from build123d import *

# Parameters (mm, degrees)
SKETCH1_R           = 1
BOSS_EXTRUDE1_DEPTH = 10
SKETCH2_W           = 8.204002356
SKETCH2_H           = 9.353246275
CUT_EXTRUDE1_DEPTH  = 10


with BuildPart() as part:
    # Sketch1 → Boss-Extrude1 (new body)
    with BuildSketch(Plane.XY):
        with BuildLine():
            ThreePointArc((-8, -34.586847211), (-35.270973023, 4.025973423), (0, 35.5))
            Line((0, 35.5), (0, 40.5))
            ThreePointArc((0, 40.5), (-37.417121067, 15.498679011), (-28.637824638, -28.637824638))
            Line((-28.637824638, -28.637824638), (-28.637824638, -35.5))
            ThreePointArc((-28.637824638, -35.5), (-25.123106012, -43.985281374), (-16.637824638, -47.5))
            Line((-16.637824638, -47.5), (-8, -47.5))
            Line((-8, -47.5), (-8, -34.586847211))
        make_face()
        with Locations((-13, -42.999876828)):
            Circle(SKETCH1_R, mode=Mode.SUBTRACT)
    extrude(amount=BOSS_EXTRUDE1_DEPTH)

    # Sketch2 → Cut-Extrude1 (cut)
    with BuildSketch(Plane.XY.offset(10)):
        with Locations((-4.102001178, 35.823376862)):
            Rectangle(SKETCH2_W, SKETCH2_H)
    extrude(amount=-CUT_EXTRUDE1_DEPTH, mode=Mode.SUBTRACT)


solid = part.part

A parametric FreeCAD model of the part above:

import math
import FreeCAD as App
import Part
import Sketcher
from FreeCAD import Vector
Q = App.Units.Quantity


def add_polygon(sketch, points):
    """Adds a closed chain of lines whose ends are joined by coincident constraints."""
    first, n = sketch.GeometryCount, len(points)
    for a, b in zip(points, points[1:] + points[:1]):
        sketch.addGeometry(Part.LineSegment(App.Vector(*a, 0), App.Vector(*b, 0)), False)
    for i in range(n):
        sketch.addConstraint(Sketcher.Constraint("Coincident", first + i, 2, first + (i + 1) % n, 1))

doc = App.newDocument("Part")
params = doc.addObject("Spreadsheet::Sheet", "Params")
for row, (alias, value) in enumerate([
    ("sketch1_diameter", "2 mm"),
    ("sketch1_radius", "12 mm"),
    ("sketch1_radius2", "35.5 mm"),
    ("sketch1_radius3", "40.5 mm"),
    ("pad1_length", "10 mm"),
    ("pocket1_length", "10 mm"),
], start=1):
    params.set(f"A{row}", alias)
    params.set(f"B{row}", "=" + value)
    params.setAlias(f"B{row}", alias)

body = doc.addObject("PartDesign::Body", "Body")

sketch1 = body.newObject("Sketcher::SketchObject", "Sketch")
sketch1.AttachmentSupport = (doc.getObject("XY_Plane"), [""])
sketch1.MapMode = "FlatFace"
sketch1.addGeometry([
    Part.ArcOfCircle(Part.Circle(Vector(0, 0, 0), Vector(0, 0, 1), 35.5), math.radians(90), math.radians(257)),
    Part.LineSegment(Vector(0, 35.5, 0), Vector(0, 40.5, 0)),
    Part.ArcOfCircle(Part.Circle(Vector(0, 0, 0), Vector(0, 0, 1), 40.5), math.radians(90), math.radians(225)),
    Part.LineSegment(Vector(-28.6, -28.6, 0), Vector(-28.6, -35.5, 0)),
    Part.ArcOfCircle(Part.Circle(Vector(-16.6, -35.5, 0), Vector(0, 0, 1), 12), math.radians(-180), math.radians(-90)),
    Part.LineSegment(Vector(-16.6, -47.5, 0), Vector(-8, -47.5, 0)),
    Part.LineSegment(Vector(-8, -47.5, 0), Vector(-8, -34.6, 0)),
    Part.Circle(Vector(-13, -43, 0), Vector(0, 0, 1), 1),
], False)
sketch1.addConstraint([
    Sketcher.Constraint("Coincident", 0, 1, 1, 1),
    Sketcher.Constraint("Coincident", 1, 2, 2, 1),
    Sketcher.Constraint("Coincident", 2, 2, 3, 1),
    Sketcher.Constraint("Tangent", 3, 2, 4, 1),
    Sketcher.Constraint("Tangent", 4, 2, 5, 1),
    Sketcher.Constraint("Coincident", 5, 2, 6, 1),
    Sketcher.Constraint("Coincident", 6, 2, 0, 2),
    Sketcher.Constraint("Vertical", 1),
    Sketcher.Constraint("Vertical", 3),
    Sketcher.Constraint("Horizontal", 5),
    Sketcher.Constraint("Vertical", 6),
    Sketcher.Constraint("Coincident", 0, 3, -1, 1),
    Sketcher.Constraint("Coincident", 2, 3, -1, 1),
    Sketcher.Constraint("PointOnObject", 0, 1, -2),
    Sketcher.Constraint("Diameter", 7, Q("2 mm")),
    Sketcher.Constraint("Radius", 4, Q("12 mm")),
    Sketcher.Constraint("Radius", 0, Q("35.5 mm")),
    Sketcher.Constraint("Radius", 2, Q("40.5 mm")),
    Sketcher.Constraint("DistanceX", 7, 3, -1, 1, Q("13 mm")),
    Sketcher.Constraint("DistanceX", 5, 2, -1, 1, Q("8 mm")),
    Sketcher.Constraint("DistanceY", 4, 3, 0, 1, Q("71 mm")),
    Sketcher.Constraint("DistanceX", 5, 1, 5, 2, Q("8.637825 mm")),
    Sketcher.Constraint("DistanceY", 7, 3, 6, 2, Q("8.41303 mm")),
])
sketch1.setExpression("Constraints[14]", "Params.sketch1_diameter")
sketch1.setExpression("Constraints[15]", "Params.sketch1_radius")
sketch1.setExpression("Constraints[16]", "Params.sketch1_radius2")
sketch1.setExpression("Constraints[17]", "Params.sketch1_radius3")
pad1 = body.newObject("PartDesign::Pad", "Pad")
pad1.Profile = sketch1
pad1.setExpression("Length", "Params.pad1_length")

sketch2 = body.newObject("Sketcher::SketchObject", "Sketch001")
sketch2.AttachmentSupport = (doc.getObject("XY_Plane"), [""])
sketch2.MapMode = "FlatFace"
sketch2.AttachmentOffset = App.Placement(Vector(0, 0, 10), App.Rotation())
add_polygon(sketch2, [(-8, 40), (-8, 31), (0, 31), (0, 40)])
sketch2.addConstraint([
    Sketcher.Constraint("Vertical", 0),
    Sketcher.Constraint("Horizontal", 1),
    Sketcher.Constraint("Vertical", 2),
    Sketcher.Constraint("Horizontal", 3),
    Sketcher.Constraint("PointOnObject", 1, 2, -2),
    Sketcher.Constraint("DistanceY", -1, 1, 2, 2, Q("40.5 mm")),
    Sketcher.Constraint("DistanceX", 1, 1, 1, 2, Q("8.204002 mm")),
    Sketcher.Constraint("DistanceY", 0, 2, 0, 1, Q("9.353246 mm")),
])
pocket1 = body.newObject("PartDesign::Pocket", "Pocket")
pocket1.Profile = sketch2
pocket1.setExpression("Length", "Params.pocket1_length")

doc.recompute()
